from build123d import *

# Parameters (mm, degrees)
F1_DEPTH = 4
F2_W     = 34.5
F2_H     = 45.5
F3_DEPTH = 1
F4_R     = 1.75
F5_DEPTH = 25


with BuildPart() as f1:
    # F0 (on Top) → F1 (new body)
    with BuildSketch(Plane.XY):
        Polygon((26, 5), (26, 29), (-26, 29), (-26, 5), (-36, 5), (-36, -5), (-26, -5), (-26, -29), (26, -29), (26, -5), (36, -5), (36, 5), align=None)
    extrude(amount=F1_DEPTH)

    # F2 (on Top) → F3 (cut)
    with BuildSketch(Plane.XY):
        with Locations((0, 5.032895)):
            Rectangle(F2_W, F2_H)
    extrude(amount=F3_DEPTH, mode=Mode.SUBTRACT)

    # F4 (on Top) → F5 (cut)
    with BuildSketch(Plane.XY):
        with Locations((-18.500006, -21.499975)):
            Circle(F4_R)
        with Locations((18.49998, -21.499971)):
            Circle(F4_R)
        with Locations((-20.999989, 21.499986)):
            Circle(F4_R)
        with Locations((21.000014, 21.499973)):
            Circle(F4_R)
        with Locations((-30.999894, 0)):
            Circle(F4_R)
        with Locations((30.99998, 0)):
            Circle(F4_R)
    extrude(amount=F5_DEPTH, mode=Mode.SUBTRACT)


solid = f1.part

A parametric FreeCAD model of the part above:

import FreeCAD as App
import Part
import Sketcher

V = App.Vector


def add_polygon(sketch, points):
    """Adds a closed chain of lines whose ends are joined by coincident constraints."""
    first, n = sketch.GeometryCount, len(points)
    for a, b in zip(points, points[1:] + points[:1]):
        sketch.addGeometry(Part.LineSegment(App.Vector(*a, 0), App.Vector(*b, 0)), False)
    for i in range(n):
        sketch.addConstraint(Sketcher.Constraint("Coincident", first + i, 2, first + (i + 1) % n, 1))

doc = App.newDocument("Part")
params = doc.addObject("Spreadsheet::Sheet", "Params")
for row, (alias, value) in enumerate([
    ("sketch1_width", "52 mm"),
    ("sketch1_width2", "10 mm"),
    ("sketch1_height", "24 mm"),
    ("pad1_length", "4 mm"),
    ("sketch2_width", "34.5 mm"),
    ("sketch2_height", "45.5 mm"),
    ("pocket1_length", "1 mm"),
    ("sketch3_diameter", "3.5 mm"),
    ("pocket2_length", "25 mm"),
], start=1):
    params.set(f"A{row}", alias)
    params.set(f"B{row}", "=" + value)
    params.setAlias(f"B{row}", alias)

body = doc.addObject("PartDesign::Body", "Body")

sketch1 = doc.addObject("Sketcher::SketchObject", "Sketch")
body.addObject(sketch1)
sketch1.AttachmentSupport = (doc.XY_Plane, [""])
sketch1.MapMode = "FlatFace"
add_polygon(sketch1, [(26, 5), (26, 29), (-26, 29), (-26, 5), (-36, 5), (-36, -5), (-26, -5), (-26, -29), (26, -29), (26, -5), (36, -5), (36, 5)])
sketch1.addConstraint(Sketcher.Constraint("Vertical", 0))
sketch1.addConstraint(Sketcher.Constraint("Horizontal", 1))
sketch1.addConstraint(Sketcher.Constraint("Vertical", 2))
sketch1.addConstraint(Sketcher.Constraint("Horizontal", 3))
sketch1.addConstraint(Sketcher.Constraint("Vertical", 4))
sketch1.addConstraint(Sketcher.Constraint("Horizontal", 5))
sketch1.addConstraint(Sketcher.Constraint("Vertical", 6))
sketch1.addConstraint(Sketcher.Constraint("Horizontal", 7))
sketch1.addConstraint(Sketcher.Constraint("Vertical", 8))
sketch1.addConstraint(Sketcher.Constraint("Horizontal", 9))
sketch1.addConstraint(Sketcher.Constraint("Vertical", 10))
sketch1.addConstraint(Sketcher.Constraint("Horizontal", 11))
sketch1.addConstraint(Sketcher.Constraint("Symmetric", 0, 2, 6, 2, -1, 1))
sketch1.addConstraint(Sketcher.Constraint("Symmetric", 2, 2, 8, 2, -1, 1))
sketch1.addConstraint(Sketcher.Constraint("Symmetric", 4, 2, 10, 2, -1, 1))
sketch1.addConstraint(Sketcher.Constraint("Symmetric", 5, 2, 8, 2, -2))
sketch1.addConstraint(Sketcher.Constraint("Equal", 11, 4))
sketch1.addConstraint(Sketcher.Constraint("DistanceX", 1, 2, 1, 1, 52.0))
sketch1.addConstraint(Sketcher.Constraint("DistanceX", 3, 2, 3, 1, 10.0))
sketch1.addConstraint(Sketcher.Constraint("DistanceY", 0, 1, 0, 2, 24.0))
sketch1.setExpression("Constraints[29]", "Params.sketch1_width")
sketch1.setExpression("Constraints[30]", "Params.sketch1_width2")
sketch1.setExpression("Constraints[31]", "Params.sketch1_height")
pad1 = doc.addObject("PartDesign::Pad", "Pad")
body.addObject(pad1)
pad1.Profile = sketch1
pad1.setExpression("Length", "Params.pad1_length")

sketch2 = doc.addObject("Sketcher::SketchObject", "Sketch001")
body.addObject(sketch2)
sketch2.AttachmentSupport = (doc.XY_Plane, [""])
sketch2.MapMode = "FlatFace"
add_polygon(sketch2, [(-17, 28), (-17, -18), (17, -18), (17, 28)])
sketch2.addConstraint(Sketcher.Constraint("Vertical", 0))
sketch2.addConstraint(Sketcher.Constraint("Horizontal", 1))
sketch2.addConstraint(Sketcher.Constraint("Vertical", 2))
sketch2.addConstraint(Sketcher.Constraint("Horizontal", 3))
sketch2.addConstraint(Sketcher.Constraint("DistanceX", 1, 1, 1, 2, 34.5))
sketch2.addConstraint(Sketcher.Constraint("DistanceY", 0, 2, 0, 1, 45.5))
sketch2.addConstraint(Sketcher.Constraint("DistanceX", 0, 2, -1, 1, 17.25))
sketch2.addConstraint(Sketcher.Constraint("DistanceY", 0, 2, -1, 1, 17.717105))
sketch2.setExpression("Constraints[8]", "Params.sketch2_width")
sketch2.setExpression("Constraints[9]", "Params.sketch2_height")
pocket1 = doc.addObject("PartDesign::Pocket", "Pocket")
body.addObject(pocket1)
pocket1.Profile = sketch2
pocket1.setExpression("Length", "Params.pocket1_length")
pocket1.Reversed = True

sketch3 = doc.addObject("Sketcher::SketchObject", "Sketch002")
body.addObject(sketch3)
sketch3.AttachmentSupport = (doc.XY_Plane, [""])
sketch3.MapMode = "FlatFace"
sketch3.addGeometry(Part.Circle(V(-18.5, -21.5, 0), V(0, 0, 1), 1.8), False)
sketch3.addGeometry(Part.Circle(V(18.5, -21.5, 0), V(0, 0, 1), 1.8), False)
sketch3.addGeometry(Part.Circle(V(-21, 21.5, 0), V(0, 0, 1), 1.8), False)
sketch3.addGeometry(Part.Circle(V(21, 21.5, 0), V(0, 0, 1), 1.8), False)
sketch3.addGeometry(Part.Circle(V(-31, 0, 0), V(0, 0, 1), 1.8), False)
sketch3.addGeometry(Part.Circle(V(31, 0, 0), V(0, 0, 1), 1.8), False)
sketch3.addConstraint(Sketcher.Constraint("Equal", 0, 1))
sketch3.addConstraint(Sketcher.Constraint("Equal", 1, 2))
sketch3.addConstraint(Sketcher.Constraint("Equal", 2, 3))
sketch3.addConstraint(Sketcher.Constraint("Equal", 3, 4))
sketch3.addConstraint(Sketcher.Constraint("Equal", 4, 5))
sketch3.addConstraint(Sketcher.Constraint("PointOnObject", 4, 3, -1))
sketch3.addConstraint(Sketcher.Constraint("PointOnObject", 5, 3, -1))
sketch3.addConstraint(Sketcher.Constraint("Diameter", 0, 3.5))
sketch3.addConstraint(Sketcher.Constraint("DistanceX", 1, 3, 5, 3, 12.5))
sketch3.addConstraint(Sketcher.Constraint("DistanceX", -1, 1, 1, 3, 18.49998))
sketch3.addConstraint(Sketcher.Constraint("DistanceY", 1, 3, -1, 1, 21.499971))
sketch3.addConstraint(Sketcher.Constraint("DistanceX", 2, 3, -1, 1, 20.999989))
sketch3.addConstraint(Sketcher.Constraint("DistanceY", 0, 3, 2, 3, 42.999961))
sketch3.addConstraint(Sketcher.Constraint("DistanceX", 0, 3, 3, 3, 39.50002))
sketch3.addConstraint(Sketcher.Constraint("DistanceY", 0, 3, 3, 3, 42.999948))
sketch3.addConstraint(Sketcher.Constraint("DistanceX", 4, 3, 0, 3, 12.499888))
sketch3.addConstraint(Sketcher.Constraint("DistanceX", 0, 3, -1, 1, 18.500006))
sketch3.addConstraint(Sketcher.Constraint("DistanceY", 0, 3, -1, 1, 21.499975))
sketch3.setExpression("Constraints[7]", "Params.sketch3_diameter")
pocket2 = doc.addObject("PartDesign::Pocket", "Pocket001")
body.addObject(pocket2)
pocket2.Profile = sketch3
pocket2.setExpression("Length", "Params.pocket2_length")
pocket2.Reversed = True

doc.recompute()
